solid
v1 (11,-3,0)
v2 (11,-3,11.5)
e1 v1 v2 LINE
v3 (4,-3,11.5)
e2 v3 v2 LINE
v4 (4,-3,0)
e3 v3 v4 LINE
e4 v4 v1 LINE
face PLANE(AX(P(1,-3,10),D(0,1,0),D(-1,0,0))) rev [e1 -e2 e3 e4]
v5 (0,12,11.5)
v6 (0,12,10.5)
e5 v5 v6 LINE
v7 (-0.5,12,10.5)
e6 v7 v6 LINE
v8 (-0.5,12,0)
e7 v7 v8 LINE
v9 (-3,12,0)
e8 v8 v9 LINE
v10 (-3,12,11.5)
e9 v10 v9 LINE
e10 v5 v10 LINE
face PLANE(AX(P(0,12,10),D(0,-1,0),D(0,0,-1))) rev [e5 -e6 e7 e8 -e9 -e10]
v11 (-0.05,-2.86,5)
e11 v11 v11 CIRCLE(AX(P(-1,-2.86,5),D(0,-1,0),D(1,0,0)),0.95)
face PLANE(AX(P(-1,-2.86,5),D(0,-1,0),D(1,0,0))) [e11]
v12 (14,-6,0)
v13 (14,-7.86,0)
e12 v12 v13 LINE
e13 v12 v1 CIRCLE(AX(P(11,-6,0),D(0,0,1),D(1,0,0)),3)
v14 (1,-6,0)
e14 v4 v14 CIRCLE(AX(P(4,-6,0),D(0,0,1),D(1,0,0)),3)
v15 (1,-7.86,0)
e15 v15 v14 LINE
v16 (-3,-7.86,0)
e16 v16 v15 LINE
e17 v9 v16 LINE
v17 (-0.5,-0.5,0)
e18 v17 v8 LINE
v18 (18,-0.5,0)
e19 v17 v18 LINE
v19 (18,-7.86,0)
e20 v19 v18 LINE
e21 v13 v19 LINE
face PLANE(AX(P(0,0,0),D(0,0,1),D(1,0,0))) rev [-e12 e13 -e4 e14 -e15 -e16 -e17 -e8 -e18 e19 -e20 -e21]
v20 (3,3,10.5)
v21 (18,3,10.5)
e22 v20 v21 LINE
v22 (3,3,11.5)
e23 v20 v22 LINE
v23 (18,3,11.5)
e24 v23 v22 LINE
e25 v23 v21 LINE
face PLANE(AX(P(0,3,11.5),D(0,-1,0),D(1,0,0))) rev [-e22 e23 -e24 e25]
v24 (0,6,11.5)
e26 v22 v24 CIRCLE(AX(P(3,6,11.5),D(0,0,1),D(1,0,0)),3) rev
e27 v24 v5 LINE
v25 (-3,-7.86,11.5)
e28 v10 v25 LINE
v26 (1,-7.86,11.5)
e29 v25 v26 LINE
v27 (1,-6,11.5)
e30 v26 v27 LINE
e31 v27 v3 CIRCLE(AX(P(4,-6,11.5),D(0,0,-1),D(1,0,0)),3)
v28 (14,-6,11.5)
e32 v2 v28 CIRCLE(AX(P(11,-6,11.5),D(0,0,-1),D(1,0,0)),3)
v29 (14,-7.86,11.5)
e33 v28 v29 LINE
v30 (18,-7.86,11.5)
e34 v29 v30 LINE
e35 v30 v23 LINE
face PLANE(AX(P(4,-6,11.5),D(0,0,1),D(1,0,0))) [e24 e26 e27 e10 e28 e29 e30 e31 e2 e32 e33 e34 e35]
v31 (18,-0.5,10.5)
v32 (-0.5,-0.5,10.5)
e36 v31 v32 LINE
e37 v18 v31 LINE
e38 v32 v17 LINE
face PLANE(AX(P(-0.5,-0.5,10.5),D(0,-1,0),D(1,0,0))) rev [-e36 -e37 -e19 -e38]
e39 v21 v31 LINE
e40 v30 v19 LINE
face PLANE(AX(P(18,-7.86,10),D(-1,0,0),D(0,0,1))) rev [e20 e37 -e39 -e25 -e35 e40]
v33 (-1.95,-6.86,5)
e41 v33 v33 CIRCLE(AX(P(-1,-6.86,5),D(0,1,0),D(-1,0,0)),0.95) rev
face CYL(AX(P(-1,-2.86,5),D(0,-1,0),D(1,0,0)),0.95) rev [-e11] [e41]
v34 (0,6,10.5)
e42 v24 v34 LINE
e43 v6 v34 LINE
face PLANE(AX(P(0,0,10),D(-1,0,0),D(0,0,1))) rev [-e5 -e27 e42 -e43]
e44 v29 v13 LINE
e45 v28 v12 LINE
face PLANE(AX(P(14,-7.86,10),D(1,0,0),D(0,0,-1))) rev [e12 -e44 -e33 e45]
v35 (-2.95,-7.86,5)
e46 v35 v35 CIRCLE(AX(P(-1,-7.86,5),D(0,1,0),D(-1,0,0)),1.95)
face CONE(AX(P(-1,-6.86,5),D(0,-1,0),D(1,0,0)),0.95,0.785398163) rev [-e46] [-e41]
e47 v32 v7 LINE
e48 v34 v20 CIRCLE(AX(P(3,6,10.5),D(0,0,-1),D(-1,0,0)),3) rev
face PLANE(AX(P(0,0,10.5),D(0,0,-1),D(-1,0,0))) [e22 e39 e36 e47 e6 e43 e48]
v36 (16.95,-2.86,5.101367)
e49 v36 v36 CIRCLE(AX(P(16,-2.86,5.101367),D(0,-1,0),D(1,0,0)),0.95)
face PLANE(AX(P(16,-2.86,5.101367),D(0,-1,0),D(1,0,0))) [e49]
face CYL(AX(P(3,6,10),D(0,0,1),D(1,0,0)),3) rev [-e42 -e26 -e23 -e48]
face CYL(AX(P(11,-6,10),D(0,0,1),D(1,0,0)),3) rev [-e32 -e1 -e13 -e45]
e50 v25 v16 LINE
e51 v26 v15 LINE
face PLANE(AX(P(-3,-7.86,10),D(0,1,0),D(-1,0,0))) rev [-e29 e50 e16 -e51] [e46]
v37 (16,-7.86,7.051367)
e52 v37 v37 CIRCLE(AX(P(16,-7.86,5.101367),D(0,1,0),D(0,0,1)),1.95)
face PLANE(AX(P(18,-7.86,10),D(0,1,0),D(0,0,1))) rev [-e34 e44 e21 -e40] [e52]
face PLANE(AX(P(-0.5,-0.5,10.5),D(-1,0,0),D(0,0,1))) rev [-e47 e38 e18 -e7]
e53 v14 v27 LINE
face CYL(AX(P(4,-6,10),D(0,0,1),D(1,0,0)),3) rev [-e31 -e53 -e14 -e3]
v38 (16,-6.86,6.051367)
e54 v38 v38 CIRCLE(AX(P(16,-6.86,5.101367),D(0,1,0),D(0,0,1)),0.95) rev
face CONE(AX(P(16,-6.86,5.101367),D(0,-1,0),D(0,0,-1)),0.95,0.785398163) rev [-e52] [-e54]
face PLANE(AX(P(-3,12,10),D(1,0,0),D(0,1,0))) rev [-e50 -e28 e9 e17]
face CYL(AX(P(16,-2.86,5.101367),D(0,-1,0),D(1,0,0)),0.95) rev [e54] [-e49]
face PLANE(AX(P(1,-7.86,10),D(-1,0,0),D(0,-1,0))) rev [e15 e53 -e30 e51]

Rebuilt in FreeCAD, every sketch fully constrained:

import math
import FreeCAD as App
import Part
import Sketcher


def edges_at(feature, points):
    """Names of the edges that pass closest to the given points."""
    edges = feature.Shape.Edges
    near = lambda p: min(range(len(edges)), key=lambda i: edges[i].distToShape(Part.Vertex(*p))[0])
    return sorted({f"Edge{near(p) + 1}" for p in points})

doc = App.newDocument("Part")
body = doc.addObject("PartDesign::Body", "Body")

# Sketch on XY plane
sketch1 = body.newObject("Sketcher::SketchObject", "Sketch")
sketch1.AttachmentSupport = (doc.getObject("XY_Plane"), [""])
sketch1.MapMode = "FlatFace"
sketch1.addGeometry(Part.LineSegment(App.Vector(18, 0, 0), App.Vector(0, 0, 0)), False)
sketch1.addGeometry(Part.LineSegment(App.Vector(0, 0, 0), App.Vector(0, 12, 0)), False)
sketch1.addGeometry(Part.LineSegment(App.Vector(0, 12, 0), App.Vector(-3, 12, 0)), False)
sketch1.addGeometry(Part.LineSegment(App.Vector(-3, 12, 0), App.Vector(-3, -7.9, 0)), False)
sketch1.addGeometry(Part.LineSegment(App.Vector(-3, -7.9, 0), App.Vector(1, -7.9, 0)), False)
sketch1.addGeometry(Part.LineSegment(App.Vector(1, -7.9, 0), App.Vector(1, -3, 0)), False)
sketch1.addGeometry(Part.LineSegment(App.Vector(1, -3, 0), App.Vector(14, -3, 0)), False)
sketch1.addGeometry(Part.LineSegment(App.Vector(14, -3, 0), App.Vector(14, -7.9, 0)), False)
sketch1.addGeometry(Part.LineSegment(App.Vector(14, -7.9, 0), App.Vector(18, -7.9, 0)), False)
sketch1.addGeometry(Part.LineSegment(App.Vector(18, -7.9, 0), App.Vector(18, 0, 0)), False)
sketch1.addConstraint(Sketcher.Constraint("Coincident", 0, 2, 1, 1))
sketch1.addConstraint(Sketcher.Constraint("Coincident", 1, 2, 2, 1))
sketch1.addConstraint(Sketcher.Constraint("Coincident", 2, 2, 3, 1))
sketch1.addConstraint(Sketcher.Constraint("Coincident", 3, 2, 4, 1))
sketch1.addConstraint(Sketcher.Constraint("Coincident", 4, 2, 5, 1))
sketch1.addConstraint(Sketcher.Constraint("Coincident", 5, 2, 6, 1))
sketch1.addConstraint(Sketcher.Constraint("Coincident", 6, 2, 7, 1))
sketch1.addConstraint(Sketcher.Constraint("Coincident", 7, 2, 8, 1))
sketch1.addConstraint(Sketcher.Constraint("Coincident", 8, 2, 9, 1))
sketch1.addConstraint(Sketcher.Constraint("Coincident", 9, 2, 0, 1))
sketch1.addConstraint(Sketcher.Constraint("Horizontal", 0))
sketch1.addConstraint(Sketcher.Constraint("Vertical", 1))
sketch1.addConstraint(Sketcher.Constraint("Horizontal", 2))
sketch1.addConstraint(Sketcher.Constraint("Vertical", 3))
sketch1.addConstraint(Sketcher.Constraint("Horizontal", 4))
sketch1.addConstraint(Sketcher.Constraint("Vertical", 5))
sketch1.addConstraint(Sketcher.Constraint("Horizontal", 6))
sketch1.addConstraint(Sketcher.Constraint("Vertical", 7))
sketch1.addConstraint(Sketcher.Constraint("Horizontal", 8))
sketch1.addConstraint(Sketcher.Constraint("Vertical", 9))
sketch1.addConstraint(Sketcher.Constraint("Coincident", 0, 2, -1, 1))
sketch1.addConstraint(Sketcher.Constraint("Horizontal", 4, 2, 7, 2))
sketch1.addConstraint(Sketcher.Constraint("Equal", 4, 8))
sketch1.addConstraint(Sketcher.Constraint("DistanceX", 0, 2, 0, 1, 18.0))
sketch1.addConstraint(Sketcher.Constraint("DistanceX", 2, 2, 2, 1, 3.0))
sketch1.addConstraint(Sketcher.Constraint("DistanceX", 4, 1, 4, 2, 4.0))
sketch1.addConstraint(Sketcher.Constraint("DistanceY", 1, 1, 1, 2, 12.0))
sketch1.addConstraint(Sketcher.Constraint("DistanceY", 5, 2, -1, 1, 3.0))
sketch1.addConstraint(Sketcher.Constraint("DistanceY", 3, 2, 3, 1, 19.86))
pad1 = body.newObject("PartDesign::Pad", "Pad")
pad1.Profile = sketch1
pad1.Length = 10

# Sketch on XZ plane
sketch2 = body.newObject("Sketcher::SketchObject", "Sketch001")
sketch2.AttachmentSupport = (doc.getObject("XZ_Plane"), [""])
sketch2.MapMode = "FlatFace"
sketch2.AttachmentOffset = App.Placement(App.Vector(0, 0, 7.86), App.Rotation())
sketch2.addGeometry(Part.Circle(App.Vector(-1, 5, 0), App.Vector(0, 0, 1), 0.9), False)
sketch2.addGeometry(Part.Circle(App.Vector(16, 5.1, 0), App.Vector(0, 0, 1), 0.9), False)
sketch2.addConstraint(Sketcher.Constraint("Equal", 0, 1))
sketch2.addConstraint(Sketcher.Constraint("Diameter", 0, 1.9))
sketch2.addConstraint(Sketcher.Constraint("DistanceX", 0, 3, -1, 1, 1.0))
sketch2.addConstraint(Sketcher.Constraint("DistanceY", -1, 1, 0, 3, 5.0))
sketch2.addConstraint(Sketcher.Constraint("DistanceX", -1, 1, 1, 3, 16.0))
sketch2.addConstraint(Sketcher.Constraint("DistanceY", -1, 1, 1, 3, 5.101367))
pocket1 = body.newObject("PartDesign::Pocket", "Pocket")
pocket1.Profile = sketch2
pocket1.Length = 5
doc.recompute()

fillet = body.newObject("PartDesign::Fillet", "Fillet")
fillet.Base = (pocket1, edges_at(pocket1, [(14, -3, 5), (1, -3, 5)]))
fillet.Radius = 3
doc.recompute()

chamfer = body.newObject("PartDesign::Chamfer", "Chamfer")
chamfer.Base = (fillet, edges_at(fillet, [(-1.95, -7.86, 5), (15.05, -7.86, 5.101)]))
chamfer.Size = 1

# Sketch on XY plane
sketch3 = body.newObject("Sketcher::SketchObject", "Sketch002")
sketch3.AttachmentSupport = (doc.getObject("XY_Plane"), [""])
sketch3.MapMode = "FlatFace"
sketch3.AttachmentOffset = App.Placement(App.Vector(0, 0, 11.5), App.Rotation())
sketch3.addGeometry(Part.LineSegment(App.Vector(0, 3, 0), App.Vector(0, 12, 0)), False)
sketch3.addGeometry(Part.LineSegment(App.Vector(0, 12, 0), App.Vector(-3, 12, 0)), False)
sketch3.addGeometry(Part.LineSegment(App.Vector(-3, 12, 0), App.Vector(-3, -7.9, 0)), False)
sketch3.addGeometry(Part.LineSegment(App.Vector(-3, -7.9, 0), App.Vector(1, -7.9, 0)), False)
sketch3.addGeometry(Part.LineSegment(App.Vector(1, -7.9, 0), App.Vector(1, -6, 0)), False)
sketch3.addGeometry(Part.ArcOfCircle(Part.Circle(App.Vector(4, -6, 0), App.Vector(0, 0, 1), 3), math.radians(90), math.radians(180)), False)
sketch3.addGeometry(Part.LineSegment(App.Vector(4, -3, 0), App.Vector(11, -3, 0)), False)
sketch3.addGeometry(Part.ArcOfCircle(Part.Circle(App.Vector(11, -6, 0), App.Vector(0, 0, 1), 3), math.radians(0), math.radians(90)), False)
sketch3.addGeometry(Part.LineSegment(App.Vector(14, -6, 0), App.Vector(14, -7.9, 0)), False)
sketch3.addGeometry(Part.LineSegment(App.Vector(14, -7.9, 0), App.Vector(18, -7.9, 0)), False)
sketch3.addGeometry(Part.LineSegment(App.Vector(18, -7.9, 0), App.Vector(18, 3, 0)), False)
sketch3.addGeometry(Part.LineSegment(App.Vector(18, 3, 0), App.Vector(0, 3, 0)), False)
sketch3.addConstraint(Sketcher.Constraint("Coincident", 0, 2, 1, 1))
sketch3.addConstraint(Sketcher.Constraint("Coincident", 1, 2, 2, 1))
sketch3.addConstraint(Sketcher.Constraint("Coincident", 2, 2, 3, 1))
sketch3.addConstraint(Sketcher.Constraint("Coincident", 3, 2, 4, 1))
sketch3.addConstraint(Sketcher.Constraint("Tangent", 4, 2, 5, 2))
sketch3.addConstraint(Sketcher.Constraint("Tangent", 5, 1, 6, 1))
sketch3.addConstraint(Sketcher.Constraint("Tangent", 6, 2, 7, 2))
sketch3.addConstraint(Sketcher.Constraint("Tangent", 7, 1, 8, 1))
sketch3.addConstraint(Sketcher.Constraint("Coincident", 8, 2, 9, 1))
sketch3.addConstraint(Sketcher.Constraint("Coincident", 9, 2, 10, 1))
sketch3.addConstraint(Sketcher.Constraint("Coincident", 10, 2, 11, 1))
sketch3.addConstraint(Sketcher.Constraint("Coincident", 11, 2, 0, 1))
sketch3.addConstraint(Sketcher.Constraint("Vertical", 0))
sketch3.addConstraint(Sketcher.Constraint("Horizontal", 1))
sketch3.addConstraint(Sketcher.Constraint("Vertical", 2))
sketch3.addConstraint(Sketcher.Constraint("Horizontal", 3))
sketch3.addConstraint(Sketcher.Constraint("Vertical", 4))
sketch3.addConstraint(Sketcher.Constraint("Horizontal", 6))
sketch3.addConstraint(Sketcher.Constraint("Vertical", 8))
sketch3.addConstraint(Sketcher.Constraint("Horizontal", 9))
sketch3.addConstraint(Sketcher.Constraint("Vertical", 10))
sketch3.addConstraint(Sketcher.Constraint("Horizontal", 11))
sketch3.addConstraint(Sketcher.Constraint("Equal", 5, 7))
sketch3.addConstraint(Sketcher.Constraint("PointOnObject", 0, 2, -2))
sketch3.addConstraint(Sketcher.Constraint("Horizontal", 3, 2, 8, 2))
sketch3.addConstraint(Sketcher.Constraint("Equal", 3, 9))
sketch3.addConstraint(Sketcher.Constraint("Radius", 5, 3.0))
sketch3.addConstraint(Sketcher.Constraint("DistanceX", 1, 2, 1, 1, 3.0))
sketch3.addConstraint(Sketcher.Constraint("DistanceX", 3, 1, 3, 2, 4.0))
sketch3.addConstraint(Sketcher.Constraint("DistanceX", 6, 1, 6, 2, 7.0))
sketch3.addConstraint(Sketcher.Constraint("DistanceY", 0, 1, 0, 2, 9.0))
sketch3.addConstraint(Sketcher.Constraint("DistanceY", 5, 3, -1, 1, 6.0))
sketch3.addConstraint(Sketcher.Constraint("DistanceY", -1, 1, 0, 2, 12.0))
sketch3.addConstraint(Sketcher.Constraint("DistanceY", 2, 2, 2, 1, 19.86))
pad2 = body.newObject("PartDesign::Pad", "Pad001")
pad2.Profile = sketch3
pad2.Length = 1.5
pad2.Reversed = True
doc.recompute()

fillet2 = body.newObject("PartDesign::Fillet", "Fillet001")
fillet2.Base = (pad2, edges_at(pad2, [(0, 3, 10.75)]))
fillet2.Radius = 3

# Sketch on XY plane
sketch4 = body.newObject("Sketcher::SketchObject", "Sketch003")
sketch4.AttachmentSupport = (doc.getObject("XY_Plane"), [""])
sketch4.MapMode = "FlatFace"
sketch4.addGeometry(Part.LineSegment(App.Vector(18, 13, 0), App.Vector(18, 0, 0)), False)
sketch4.addGeometry(Part.LineSegment(App.Vector(18, 0, 0), App.Vector(-1, 0, 0)), False)
sketch4.addGeometry(Part.LineSegment(App.Vector(-1, 0, 0), App.Vector(-1, 13, 0)), False)
sketch4.addGeometry(Part.LineSegment(App.Vector(-1, 13, 0), App.Vector(18, 13, 0)), False)
sketch4.addConstraint(Sketcher.Constraint("Coincident", 0, 2, 1, 1))
sketch4.addConstraint(Sketcher.Constraint("Coincident", 1, 2, 2, 1))
sketch4.addConstraint(Sketcher.Constraint("Coincident", 2, 2, 3, 1))
sketch4.addConstraint(Sketcher.Constraint("Coincident", 3, 2, 0, 1))
sketch4.addConstraint(Sketcher.Constraint("Vertical", 0))
sketch4.addConstraint(Sketcher.Constraint("Horizontal", 1))
sketch4.addConstraint(Sketcher.Constraint("Vertical", 2))
sketch4.addConstraint(Sketcher.Constraint("Horizontal", 3))
sketch4.addConstraint(Sketcher.Constraint("DistanceY", 0, 2, -1, 1, 0.5))
sketch4.addConstraint(Sketcher.Constraint("DistanceX", 1, 2, -1, 1, 0.5))
sketch4.addConstraint(Sketcher.Constraint("DistanceX", 1, 2, 1, 1, 18.894194))
sketch4.addConstraint(Sketcher.Constraint("DistanceY", 0, 2, 0, 1, 13.568314))
pocket2 = body.newObject("PartDesign::Pocket", "Pocket001")
pocket2.Profile = sketch4
pocket2.Length = 10.5
pocket2.Reversed = True

doc.recompute()
